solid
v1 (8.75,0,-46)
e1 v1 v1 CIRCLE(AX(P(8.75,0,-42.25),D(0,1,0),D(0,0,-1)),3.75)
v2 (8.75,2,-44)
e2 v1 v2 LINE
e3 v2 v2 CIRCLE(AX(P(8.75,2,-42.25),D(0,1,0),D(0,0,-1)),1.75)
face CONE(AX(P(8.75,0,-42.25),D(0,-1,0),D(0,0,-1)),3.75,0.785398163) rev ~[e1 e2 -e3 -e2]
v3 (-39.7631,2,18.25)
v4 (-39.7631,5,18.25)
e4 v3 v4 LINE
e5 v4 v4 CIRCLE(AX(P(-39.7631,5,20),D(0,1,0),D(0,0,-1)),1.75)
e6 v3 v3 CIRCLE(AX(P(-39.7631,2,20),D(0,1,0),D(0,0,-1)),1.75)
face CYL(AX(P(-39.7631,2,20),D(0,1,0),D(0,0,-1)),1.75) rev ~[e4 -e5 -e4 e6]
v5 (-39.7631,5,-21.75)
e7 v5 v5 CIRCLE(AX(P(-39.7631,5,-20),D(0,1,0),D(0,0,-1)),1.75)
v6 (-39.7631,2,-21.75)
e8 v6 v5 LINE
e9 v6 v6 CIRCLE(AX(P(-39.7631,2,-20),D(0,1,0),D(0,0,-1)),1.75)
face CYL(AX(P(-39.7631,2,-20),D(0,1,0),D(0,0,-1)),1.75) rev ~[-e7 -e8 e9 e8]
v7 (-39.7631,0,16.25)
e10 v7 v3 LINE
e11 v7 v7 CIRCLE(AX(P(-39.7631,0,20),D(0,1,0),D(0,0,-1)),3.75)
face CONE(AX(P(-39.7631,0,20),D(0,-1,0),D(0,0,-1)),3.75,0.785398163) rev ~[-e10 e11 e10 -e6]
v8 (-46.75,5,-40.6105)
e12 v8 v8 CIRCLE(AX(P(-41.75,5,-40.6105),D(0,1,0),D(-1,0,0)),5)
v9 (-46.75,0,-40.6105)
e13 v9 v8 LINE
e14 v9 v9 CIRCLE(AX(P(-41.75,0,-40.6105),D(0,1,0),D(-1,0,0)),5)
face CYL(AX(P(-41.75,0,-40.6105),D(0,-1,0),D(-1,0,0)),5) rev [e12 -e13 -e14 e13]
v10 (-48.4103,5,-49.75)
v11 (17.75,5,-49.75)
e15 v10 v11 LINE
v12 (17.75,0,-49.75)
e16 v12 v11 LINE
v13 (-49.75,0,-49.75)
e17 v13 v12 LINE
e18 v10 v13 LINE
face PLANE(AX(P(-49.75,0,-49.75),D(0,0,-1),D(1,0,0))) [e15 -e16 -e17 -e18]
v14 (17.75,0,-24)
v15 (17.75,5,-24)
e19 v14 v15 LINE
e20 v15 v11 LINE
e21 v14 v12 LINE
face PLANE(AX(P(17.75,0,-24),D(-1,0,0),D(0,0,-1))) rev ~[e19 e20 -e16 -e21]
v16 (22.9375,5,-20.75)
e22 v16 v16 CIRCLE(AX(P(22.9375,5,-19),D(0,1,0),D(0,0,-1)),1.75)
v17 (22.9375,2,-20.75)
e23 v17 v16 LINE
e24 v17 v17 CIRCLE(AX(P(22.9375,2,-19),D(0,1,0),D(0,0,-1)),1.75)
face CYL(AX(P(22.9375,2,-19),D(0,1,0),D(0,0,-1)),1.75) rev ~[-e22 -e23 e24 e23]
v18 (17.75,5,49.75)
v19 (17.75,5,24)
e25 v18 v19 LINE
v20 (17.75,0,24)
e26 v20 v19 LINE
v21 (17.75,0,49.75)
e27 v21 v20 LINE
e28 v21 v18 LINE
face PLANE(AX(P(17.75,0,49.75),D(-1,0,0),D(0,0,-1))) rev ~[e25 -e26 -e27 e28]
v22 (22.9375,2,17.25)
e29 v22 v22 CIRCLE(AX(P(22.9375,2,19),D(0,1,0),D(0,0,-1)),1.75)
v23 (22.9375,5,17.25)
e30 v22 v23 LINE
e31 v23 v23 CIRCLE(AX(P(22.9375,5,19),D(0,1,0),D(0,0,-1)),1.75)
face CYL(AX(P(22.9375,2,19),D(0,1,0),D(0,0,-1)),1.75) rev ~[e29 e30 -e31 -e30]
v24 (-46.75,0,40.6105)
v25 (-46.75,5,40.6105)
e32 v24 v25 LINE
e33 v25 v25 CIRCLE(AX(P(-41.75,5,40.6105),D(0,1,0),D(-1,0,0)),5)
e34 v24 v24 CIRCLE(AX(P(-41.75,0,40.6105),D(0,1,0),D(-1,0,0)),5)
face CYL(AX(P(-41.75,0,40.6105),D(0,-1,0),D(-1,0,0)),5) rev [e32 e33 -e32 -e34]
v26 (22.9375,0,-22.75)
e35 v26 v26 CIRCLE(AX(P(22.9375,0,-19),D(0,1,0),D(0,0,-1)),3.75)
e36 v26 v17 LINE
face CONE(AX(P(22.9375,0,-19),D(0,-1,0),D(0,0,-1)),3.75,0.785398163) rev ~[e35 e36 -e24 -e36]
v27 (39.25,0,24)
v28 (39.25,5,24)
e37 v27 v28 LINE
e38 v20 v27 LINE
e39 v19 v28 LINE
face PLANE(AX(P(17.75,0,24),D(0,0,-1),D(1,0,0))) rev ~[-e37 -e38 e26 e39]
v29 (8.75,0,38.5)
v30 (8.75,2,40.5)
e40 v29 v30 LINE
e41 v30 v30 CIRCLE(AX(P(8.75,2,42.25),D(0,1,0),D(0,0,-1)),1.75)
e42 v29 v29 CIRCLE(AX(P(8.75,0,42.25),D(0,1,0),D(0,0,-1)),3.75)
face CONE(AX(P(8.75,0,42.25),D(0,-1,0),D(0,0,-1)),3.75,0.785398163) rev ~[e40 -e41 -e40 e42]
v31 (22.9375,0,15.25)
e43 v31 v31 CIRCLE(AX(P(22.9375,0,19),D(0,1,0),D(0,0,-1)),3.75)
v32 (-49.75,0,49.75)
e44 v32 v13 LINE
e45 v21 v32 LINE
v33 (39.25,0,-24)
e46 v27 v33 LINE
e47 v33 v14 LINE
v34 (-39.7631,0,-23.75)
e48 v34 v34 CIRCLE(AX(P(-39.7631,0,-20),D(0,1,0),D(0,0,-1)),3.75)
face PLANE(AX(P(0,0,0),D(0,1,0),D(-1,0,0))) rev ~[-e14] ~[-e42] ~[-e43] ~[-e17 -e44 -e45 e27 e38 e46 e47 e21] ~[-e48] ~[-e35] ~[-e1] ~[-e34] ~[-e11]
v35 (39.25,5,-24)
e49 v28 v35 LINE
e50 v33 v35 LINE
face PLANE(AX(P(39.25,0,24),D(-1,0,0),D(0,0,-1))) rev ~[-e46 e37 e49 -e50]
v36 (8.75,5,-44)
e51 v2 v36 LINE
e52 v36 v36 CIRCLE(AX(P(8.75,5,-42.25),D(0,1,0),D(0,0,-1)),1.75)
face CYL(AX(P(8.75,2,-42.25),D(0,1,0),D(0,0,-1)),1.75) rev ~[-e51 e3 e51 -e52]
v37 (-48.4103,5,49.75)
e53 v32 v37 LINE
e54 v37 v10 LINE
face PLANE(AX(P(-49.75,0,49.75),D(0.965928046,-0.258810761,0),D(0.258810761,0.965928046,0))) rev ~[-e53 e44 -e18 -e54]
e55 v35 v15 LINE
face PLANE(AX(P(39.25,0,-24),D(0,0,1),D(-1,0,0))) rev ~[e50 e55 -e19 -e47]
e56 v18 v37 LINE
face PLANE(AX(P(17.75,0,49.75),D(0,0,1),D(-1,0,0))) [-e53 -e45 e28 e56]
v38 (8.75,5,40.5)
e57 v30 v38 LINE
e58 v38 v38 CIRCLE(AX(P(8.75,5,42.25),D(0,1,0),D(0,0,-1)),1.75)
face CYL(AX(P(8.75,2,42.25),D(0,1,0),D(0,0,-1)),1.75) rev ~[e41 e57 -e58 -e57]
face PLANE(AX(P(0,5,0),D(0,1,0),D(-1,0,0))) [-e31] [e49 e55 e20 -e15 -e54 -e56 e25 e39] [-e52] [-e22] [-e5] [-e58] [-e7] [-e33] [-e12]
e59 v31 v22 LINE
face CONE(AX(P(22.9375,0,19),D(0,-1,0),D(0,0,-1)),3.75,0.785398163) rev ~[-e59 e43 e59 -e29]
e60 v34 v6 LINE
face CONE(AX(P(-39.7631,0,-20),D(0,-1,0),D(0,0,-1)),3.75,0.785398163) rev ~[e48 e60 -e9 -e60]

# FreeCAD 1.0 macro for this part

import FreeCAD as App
import Part
import Sketcher

V = App.Vector
Q = App.Units.Quantity

doc = App.newDocument("Part")
body = doc.addObject("PartDesign::Body", "Body")

sketch1 = body.newObject("Sketcher::SketchObject", "Sketch")
sketch1.AttachmentSupport = (doc.getObject("XZ_Plane"), [""])
sketch1.MapMode = "FlatFace"
sketch1.addGeometry(Part.LineSegment(V(-49.75, 49.75, 0), V(17.75, 49.75, 0)), False)
sketch1.addGeometry(Part.LineSegment(V(17.75, 49.75, 0), V(17.75, 24, 0)), False)
sketch1.addGeometry(Part.LineSegment(V(17.75, 24, 0), V(39.25, 24, 0)), False)
sketch1.addGeometry(Part.LineSegment(V(39.25, 24, 0), V(39.25, -24, 0)), False)
sketch1.addGeometry(Part.LineSegment(V(39.25, -24, 0), V(17.75, -24, 0)), False)
sketch1.addGeometry(Part.LineSegment(V(17.75, -24, 0), V(17.75, -49.75, 0)), False)
sketch1.addGeometry(Part.LineSegment(V(17.75, -49.75, 0), V(-49.75, -49.75, 0)), False)
sketch1.addGeometry(Part.LineSegment(V(-49.75, -49.75, 0), V(-49.75, 49.75, 0)), False)
sketch1.addGeometry(Part.Circle(V(-41.75, -40.6105, 0), V(0, 0, 1), 5), False)
sketch1.addGeometry(Part.Circle(V(-41.75, 40.6105, 0), V(0, 0, 1), 5), False)
sketch1.addConstraint(Sketcher.Constraint("Coincident", 0, 2, 1, 1))
sketch1.addConstraint(Sketcher.Constraint("Coincident", 1, 2, 2, 1))
sketch1.addConstraint(Sketcher.Constraint("Coincident", 2, 2, 3, 1))
sketch1.addConstraint(Sketcher.Constraint("Coincident", 3, 2, 4, 1))
sketch1.addConstraint(Sketcher.Constraint("Coincident", 4, 2, 5, 1))
sketch1.addConstraint(Sketcher.Constraint("Coincident", 5, 2, 6, 1))
sketch1.addConstraint(Sketcher.Constraint("Coincident", 6, 2, 7, 1))
sketch1.addConstraint(Sketcher.Constraint("Coincident", 7, 2, 0, 1))
sketch1.addConstraint(Sketcher.Constraint("Horizontal", 0))
sketch1.addConstraint(Sketcher.Constraint("Vertical", 1))
sketch1.addConstraint(Sketcher.Constraint("Horizontal", 2))
sketch1.addConstraint(Sketcher.Constraint("Vertical", 3))
sketch1.addConstraint(Sketcher.Constraint("Horizontal", 4))
sketch1.addConstraint(Sketcher.Constraint("Vertical", 5))
sketch1.addConstraint(Sketcher.Constraint("Horizontal", 6))
sketch1.addConstraint(Sketcher.Constraint("Vertical", 7))
sketch1.addConstraint(Sketcher.Constraint("Equal", 8, 9))
sketch1.addConstraint(Sketcher.Constraint("Symmetric", 8, 3, 9, 3, -1))
sketch1.addConstraint(Sketcher.Constraint("Symmetric", 1, 2, 4, 2, -1))
sketch1.addConstraint(Sketcher.Constraint("Equal", 1, 5))
sketch1.addConstraint(Sketcher.Constraint("Diameter", 8, Q("10 mm")))
sketch1.addConstraint(Sketcher.Constraint("DistanceY", 3, 2, 3, 1, Q("48 mm")))
sketch1.addConstraint(Sketcher.Constraint("DistanceY", 7, 1, 7, 2, Q("99.5 mm")))
sketch1.addConstraint(Sketcher.Constraint("DistanceX", 6, 2, 8, 3, Q("8 mm")))
sketch1.addConstraint(Sketcher.Constraint("DistanceX", 0, 1, 0, 2, Q("67.5 mm")))
sketch1.addConstraint(Sketcher.Constraint("DistanceX", 2, 1, 2, 2, Q("21.5 mm")))
sketch1.addConstraint(Sketcher.Constraint("DistanceY", 8, 3, 9, 3, Q("81.221 mm")))
sketch1.addConstraint(Sketcher.Constraint("DistanceX", 8, 3, -1, 1, Q("41.75 mm")))
pad1 = body.newObject("PartDesign::Pad", "Pad")
pad1.Profile = sketch1
pad1.Length = 5
pad1.Reversed = True

sketch2 = body.newObject("Sketcher::SketchObject", "Sketch001")
sketch2.AttachmentSupport = (doc.getObject("XY_Plane"), [""])
sketch2.MapMode = "FlatFace"
sketch2.AttachmentOffset = App.Placement(V(0, 0, 49.75), App.Rotation())
sketch2.addGeometry(Part.LineSegment(V(-49.75, 5, 0), V(-49.75, 0, 0)), False)
sketch2.addGeometry(Part.LineSegment(V(-49.75, 0, 0), V(-48.4103, 5, 0)), False)
sketch2.addGeometry(Part.LineSegment(V(-48.4103, 5, 0), V(-49.75, 5, 0)), False)
sketch2.addConstraint(Sketcher.Constraint("Coincident", 0, 2, 1, 1))
sketch2.addConstraint(Sketcher.Constraint("Coincident", 1, 2, 2, 1))
sketch2.addConstraint(Sketcher.Constraint("Coincident", 2, 2, 0, 1))
sketch2.addConstraint(Sketcher.Constraint("Vertical", 0))
sketch2.addConstraint(Sketcher.Constraint("Horizontal", 2))
sketch2.addConstraint(Sketcher.Constraint("PointOnObject", 0, 2, -1))
sketch2.addConstraint(Sketcher.Constraint("Angle", 1, Q("75.0005 deg")))
sketch2.addConstraint(Sketcher.Constraint("DistanceY", 0, 2, 0, 1, Q("5 mm")))
sketch2.addConstraint(Sketcher.Constraint("DistanceX", 0, 2, -1, 1, Q("49.75 mm")))
pocket1 = body.newObject("PartDesign::Pocket", "Pocket")
pocket1.Profile = sketch2
pocket1.Type = "ThroughAll"

sketch3 = body.newObject("Sketcher::SketchObject", "Sketch002")
sketch3.AttachmentSupport = (doc.getObject("XZ_Plane"), [""])
sketch3.MapMode = "FlatFace"
sketch3.addGeometry(Part.Circle(V(22.9375, 19, 0), V(0, 0, 1), 1.75), False)
sketch3.addGeometry(Part.Circle(V(22.9375, -19, 0), V(0, 0, 1), 1.75), False)
sketch3.addGeometry(Part.Circle(V(8.75, -42.25, 0), V(0, 0, 1), 1.75), False)
sketch3.addGeometry(Part.Circle(V(-39.7631, -20, 0), V(0, 0, 1), 1.75), False)
sketch3.addGeometry(Part.Circle(V(-39.7631, 20, 0), V(0, 0, 1), 1.75), False)
sketch3.addGeometry(Part.Circle(V(8.75, 42.25, 0), V(0, 0, 1), 1.75), False)
sketch3.addConstraint(Sketcher.Constraint("Equal", 0, 1))
sketch3.addConstraint(Sketcher.Constraint("Equal", 1, 2))
sketch3.addConstraint(Sketcher.Constraint("Equal", 2, 3))
sketch3.addConstraint(Sketcher.Constraint("Equal", 3, 4))
sketch3.addConstraint(Sketcher.Constraint("Equal", 4, 5))
sketch3.addConstraint(Sketcher.Constraint("Symmetric", 0, 3, 1, 3, -1))
sketch3.addConstraint(Sketcher.Constraint("Symmetric", 3, 3, 4, 3, -1))
sketch3.addConstraint(Sketcher.Constraint("Symmetric", 2, 3, 5, 3, -1))
sketch3.addConstraint(Sketcher.Constraint("Diameter", 0, Q("3.5 mm")))
sketch3.addConstraint(Sketcher.Constraint("DistanceY", -1, 1, 0, 3, Q("19 mm")))
sketch3.addConstraint(Sketcher.Constraint("DistanceY", 3, 3, -1, 1, Q("20 mm")))
sketch3.addConstraint(Sketcher.Constraint("DistanceY", 2, 3, 5, 3, Q("84.5 mm")))
sketch3.addConstraint(Sketcher.Constraint("DistanceX", -1, 1, 2, 3, Q("8.75 mm")))
sketch3.addConstraint(Sketcher.Constraint("DistanceX", 3, 3, -1, 1, Q("39.763 mm")))
sketch3.addConstraint(Sketcher.Constraint("DistanceX", -1, 1, 0, 3, Q("22.9375 mm")))
doc.recompute()
hole = body.newObject("PartDesign::Hole", "Hole")
hole.Profile = sketch3
hole.ThreadType = "None"
hole.Diameter = 3.5
hole.DepthType = "ThroughAll"
hole.HoleCutType = "Countersink"
hole.HoleCutDiameter = 7.5
hole.HoleCutCountersinkAngle = 90

doc.recompute()
